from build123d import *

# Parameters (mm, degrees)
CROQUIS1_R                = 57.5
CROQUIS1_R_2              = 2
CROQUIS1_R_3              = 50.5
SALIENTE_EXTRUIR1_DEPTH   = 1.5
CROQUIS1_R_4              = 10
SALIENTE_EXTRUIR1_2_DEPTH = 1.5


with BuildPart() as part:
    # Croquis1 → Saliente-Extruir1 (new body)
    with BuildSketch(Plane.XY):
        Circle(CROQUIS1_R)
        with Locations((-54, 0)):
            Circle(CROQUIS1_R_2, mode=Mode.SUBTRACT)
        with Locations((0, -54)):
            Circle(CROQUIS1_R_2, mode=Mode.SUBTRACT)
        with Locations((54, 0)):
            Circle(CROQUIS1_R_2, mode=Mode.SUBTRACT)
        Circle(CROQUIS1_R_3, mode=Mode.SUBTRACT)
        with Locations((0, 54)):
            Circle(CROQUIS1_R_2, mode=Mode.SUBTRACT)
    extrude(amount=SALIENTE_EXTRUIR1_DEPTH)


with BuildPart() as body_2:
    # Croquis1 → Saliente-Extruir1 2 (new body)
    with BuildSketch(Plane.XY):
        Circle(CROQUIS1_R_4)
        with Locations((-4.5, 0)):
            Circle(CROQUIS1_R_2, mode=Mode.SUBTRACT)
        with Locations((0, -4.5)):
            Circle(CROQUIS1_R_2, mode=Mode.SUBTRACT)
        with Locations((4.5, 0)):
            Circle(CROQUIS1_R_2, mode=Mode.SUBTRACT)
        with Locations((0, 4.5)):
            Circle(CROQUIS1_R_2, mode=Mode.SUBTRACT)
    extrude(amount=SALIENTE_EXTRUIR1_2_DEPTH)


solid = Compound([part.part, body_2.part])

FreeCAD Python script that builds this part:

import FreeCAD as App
import Part
import Sketcher
from FreeCAD import Vector
Q = App.Units.Quantity

doc = App.newDocument("Part")
body = doc.addObject("PartDesign::Body", "Body")

# Sketch on XY plane
sketch1 = body.newObject("Sketcher::SketchObject", "Sketch")
sketch1.AttachmentSupport = (doc.getObject("XY_Plane"), [""])
sketch1.MapMode = "FlatFace"
sketch1.addGeometry([
    Part.Circle(Vector(0, 0, 0), Vector(0, 0, 1), 57.5),  # 0
    Part.Circle(Vector(0, -54, 0), Vector(0, 0, 1), 2),  # 1
    Part.Circle(Vector(-54, 0, 0), Vector(0, 0, 1), 2),  # 2
    Part.Circle(Vector(0, 0, 0), Vector(0, 0, 1), 50.5),  # 3
    Part.Circle(Vector(54, 0, 0), Vector(0, 0, 1), 2),  # 4
    Part.Circle(Vector(0, 54, 0), Vector(0, 0, 1), 2),  # 5
], False)
sketch1.addConstraint([
    Sketcher.Constraint("Coincident", 0, 3, -1, 1),
    Sketcher.Constraint("Coincident", 3, 3, -1, 1),
    Sketcher.Constraint("Equal", 1, 2),
    Sketcher.Constraint("Equal", 2, 4),
    Sketcher.Constraint("Equal", 4, 5),
    Sketcher.Constraint("Symmetric", 2, 3, 4, 3, -1, 1),
    Sketcher.Constraint("Symmetric", 1, 3, 5, 3, -1, 1),
    Sketcher.Constraint("PointOnObject", 1, 3, -2),
    Sketcher.Constraint("PointOnObject", 2, 3, -1),
    Sketcher.Constraint("Diameter", 0, Q("115 mm")),
    Sketcher.Constraint("Diameter", 1, Q("4 mm")),
    Sketcher.Constraint("Diameter", 3, Q("101 mm")),
    Sketcher.Constraint("DistanceY", 1, 3, -1, 1, Q("54 mm")),
    Sketcher.Constraint("DistanceX", 2, 3, -1, 1, Q("54 mm")),
])
pad1 = body.newObject("PartDesign::Pad", "Pad")
pad1.Profile = sketch1
pad1.Length = 1.5
body2 = doc.addObject("PartDesign::Body", "Body001")

# Sketch on XY plane
sketch2 = body2.newObject("Sketcher::SketchObject", "Sketch001")
sketch2.AttachmentSupport = (doc.getObject("XY_Plane001"), [""])
sketch2.MapMode = "FlatFace"
sketch2.addGeometry([
    Part.Circle(Vector(0, 0, 0), Vector(0, 0, 1), 10),  # 0
    Part.Circle(Vector(0, -4.5, 0), Vector(0, 0, 1), 2),  # 1
    Part.Circle(Vector(-4.5, 0, 0), Vector(0, 0, 1), 2),  # 2
    Part.Circle(Vector(4.5, 0, 0), Vector(0, 0, 1), 2),  # 3
    Part.Circle(Vector(0, 4.5, 0), Vector(0, 0, 1), 2),  # 4
], False)
sketch2.addConstraint([
    Sketcher.Constraint("Coincident", 0, 3, -1, 1),
    Sketcher.Constraint("Equal", 1, 2),
    Sketcher.Constraint("Equal", 2, 3),
    Sketcher.Constraint("Equal", 3, 4),
    Sketcher.Constraint("Symmetric", 2, 3, 3, 3, -1, 1),
    Sketcher.Constraint("Symmetric", 1, 3, 4, 3, -1, 1),
    Sketcher.Constraint("PointOnObject", 1, 3, -2),
    Sketcher.Constraint("PointOnObject", 2, 3, -1),
    Sketcher.Constraint("Diameter", 0, Q("20 mm")),
    Sketcher.Constraint("Diameter", 1, Q("4 mm")),
    Sketcher.Constraint("DistanceX", 2, 3, 3, 3, Q("9 mm")),
    Sketcher.Constraint("DistanceY", 1, 3, 4, 3, Q("9 mm")),
])
pad2 = body2.newObject("PartDesign::Pad", "Pad001")
pad2.Profile = sketch2
pad2.Length = 1.5

doc.recompute()
